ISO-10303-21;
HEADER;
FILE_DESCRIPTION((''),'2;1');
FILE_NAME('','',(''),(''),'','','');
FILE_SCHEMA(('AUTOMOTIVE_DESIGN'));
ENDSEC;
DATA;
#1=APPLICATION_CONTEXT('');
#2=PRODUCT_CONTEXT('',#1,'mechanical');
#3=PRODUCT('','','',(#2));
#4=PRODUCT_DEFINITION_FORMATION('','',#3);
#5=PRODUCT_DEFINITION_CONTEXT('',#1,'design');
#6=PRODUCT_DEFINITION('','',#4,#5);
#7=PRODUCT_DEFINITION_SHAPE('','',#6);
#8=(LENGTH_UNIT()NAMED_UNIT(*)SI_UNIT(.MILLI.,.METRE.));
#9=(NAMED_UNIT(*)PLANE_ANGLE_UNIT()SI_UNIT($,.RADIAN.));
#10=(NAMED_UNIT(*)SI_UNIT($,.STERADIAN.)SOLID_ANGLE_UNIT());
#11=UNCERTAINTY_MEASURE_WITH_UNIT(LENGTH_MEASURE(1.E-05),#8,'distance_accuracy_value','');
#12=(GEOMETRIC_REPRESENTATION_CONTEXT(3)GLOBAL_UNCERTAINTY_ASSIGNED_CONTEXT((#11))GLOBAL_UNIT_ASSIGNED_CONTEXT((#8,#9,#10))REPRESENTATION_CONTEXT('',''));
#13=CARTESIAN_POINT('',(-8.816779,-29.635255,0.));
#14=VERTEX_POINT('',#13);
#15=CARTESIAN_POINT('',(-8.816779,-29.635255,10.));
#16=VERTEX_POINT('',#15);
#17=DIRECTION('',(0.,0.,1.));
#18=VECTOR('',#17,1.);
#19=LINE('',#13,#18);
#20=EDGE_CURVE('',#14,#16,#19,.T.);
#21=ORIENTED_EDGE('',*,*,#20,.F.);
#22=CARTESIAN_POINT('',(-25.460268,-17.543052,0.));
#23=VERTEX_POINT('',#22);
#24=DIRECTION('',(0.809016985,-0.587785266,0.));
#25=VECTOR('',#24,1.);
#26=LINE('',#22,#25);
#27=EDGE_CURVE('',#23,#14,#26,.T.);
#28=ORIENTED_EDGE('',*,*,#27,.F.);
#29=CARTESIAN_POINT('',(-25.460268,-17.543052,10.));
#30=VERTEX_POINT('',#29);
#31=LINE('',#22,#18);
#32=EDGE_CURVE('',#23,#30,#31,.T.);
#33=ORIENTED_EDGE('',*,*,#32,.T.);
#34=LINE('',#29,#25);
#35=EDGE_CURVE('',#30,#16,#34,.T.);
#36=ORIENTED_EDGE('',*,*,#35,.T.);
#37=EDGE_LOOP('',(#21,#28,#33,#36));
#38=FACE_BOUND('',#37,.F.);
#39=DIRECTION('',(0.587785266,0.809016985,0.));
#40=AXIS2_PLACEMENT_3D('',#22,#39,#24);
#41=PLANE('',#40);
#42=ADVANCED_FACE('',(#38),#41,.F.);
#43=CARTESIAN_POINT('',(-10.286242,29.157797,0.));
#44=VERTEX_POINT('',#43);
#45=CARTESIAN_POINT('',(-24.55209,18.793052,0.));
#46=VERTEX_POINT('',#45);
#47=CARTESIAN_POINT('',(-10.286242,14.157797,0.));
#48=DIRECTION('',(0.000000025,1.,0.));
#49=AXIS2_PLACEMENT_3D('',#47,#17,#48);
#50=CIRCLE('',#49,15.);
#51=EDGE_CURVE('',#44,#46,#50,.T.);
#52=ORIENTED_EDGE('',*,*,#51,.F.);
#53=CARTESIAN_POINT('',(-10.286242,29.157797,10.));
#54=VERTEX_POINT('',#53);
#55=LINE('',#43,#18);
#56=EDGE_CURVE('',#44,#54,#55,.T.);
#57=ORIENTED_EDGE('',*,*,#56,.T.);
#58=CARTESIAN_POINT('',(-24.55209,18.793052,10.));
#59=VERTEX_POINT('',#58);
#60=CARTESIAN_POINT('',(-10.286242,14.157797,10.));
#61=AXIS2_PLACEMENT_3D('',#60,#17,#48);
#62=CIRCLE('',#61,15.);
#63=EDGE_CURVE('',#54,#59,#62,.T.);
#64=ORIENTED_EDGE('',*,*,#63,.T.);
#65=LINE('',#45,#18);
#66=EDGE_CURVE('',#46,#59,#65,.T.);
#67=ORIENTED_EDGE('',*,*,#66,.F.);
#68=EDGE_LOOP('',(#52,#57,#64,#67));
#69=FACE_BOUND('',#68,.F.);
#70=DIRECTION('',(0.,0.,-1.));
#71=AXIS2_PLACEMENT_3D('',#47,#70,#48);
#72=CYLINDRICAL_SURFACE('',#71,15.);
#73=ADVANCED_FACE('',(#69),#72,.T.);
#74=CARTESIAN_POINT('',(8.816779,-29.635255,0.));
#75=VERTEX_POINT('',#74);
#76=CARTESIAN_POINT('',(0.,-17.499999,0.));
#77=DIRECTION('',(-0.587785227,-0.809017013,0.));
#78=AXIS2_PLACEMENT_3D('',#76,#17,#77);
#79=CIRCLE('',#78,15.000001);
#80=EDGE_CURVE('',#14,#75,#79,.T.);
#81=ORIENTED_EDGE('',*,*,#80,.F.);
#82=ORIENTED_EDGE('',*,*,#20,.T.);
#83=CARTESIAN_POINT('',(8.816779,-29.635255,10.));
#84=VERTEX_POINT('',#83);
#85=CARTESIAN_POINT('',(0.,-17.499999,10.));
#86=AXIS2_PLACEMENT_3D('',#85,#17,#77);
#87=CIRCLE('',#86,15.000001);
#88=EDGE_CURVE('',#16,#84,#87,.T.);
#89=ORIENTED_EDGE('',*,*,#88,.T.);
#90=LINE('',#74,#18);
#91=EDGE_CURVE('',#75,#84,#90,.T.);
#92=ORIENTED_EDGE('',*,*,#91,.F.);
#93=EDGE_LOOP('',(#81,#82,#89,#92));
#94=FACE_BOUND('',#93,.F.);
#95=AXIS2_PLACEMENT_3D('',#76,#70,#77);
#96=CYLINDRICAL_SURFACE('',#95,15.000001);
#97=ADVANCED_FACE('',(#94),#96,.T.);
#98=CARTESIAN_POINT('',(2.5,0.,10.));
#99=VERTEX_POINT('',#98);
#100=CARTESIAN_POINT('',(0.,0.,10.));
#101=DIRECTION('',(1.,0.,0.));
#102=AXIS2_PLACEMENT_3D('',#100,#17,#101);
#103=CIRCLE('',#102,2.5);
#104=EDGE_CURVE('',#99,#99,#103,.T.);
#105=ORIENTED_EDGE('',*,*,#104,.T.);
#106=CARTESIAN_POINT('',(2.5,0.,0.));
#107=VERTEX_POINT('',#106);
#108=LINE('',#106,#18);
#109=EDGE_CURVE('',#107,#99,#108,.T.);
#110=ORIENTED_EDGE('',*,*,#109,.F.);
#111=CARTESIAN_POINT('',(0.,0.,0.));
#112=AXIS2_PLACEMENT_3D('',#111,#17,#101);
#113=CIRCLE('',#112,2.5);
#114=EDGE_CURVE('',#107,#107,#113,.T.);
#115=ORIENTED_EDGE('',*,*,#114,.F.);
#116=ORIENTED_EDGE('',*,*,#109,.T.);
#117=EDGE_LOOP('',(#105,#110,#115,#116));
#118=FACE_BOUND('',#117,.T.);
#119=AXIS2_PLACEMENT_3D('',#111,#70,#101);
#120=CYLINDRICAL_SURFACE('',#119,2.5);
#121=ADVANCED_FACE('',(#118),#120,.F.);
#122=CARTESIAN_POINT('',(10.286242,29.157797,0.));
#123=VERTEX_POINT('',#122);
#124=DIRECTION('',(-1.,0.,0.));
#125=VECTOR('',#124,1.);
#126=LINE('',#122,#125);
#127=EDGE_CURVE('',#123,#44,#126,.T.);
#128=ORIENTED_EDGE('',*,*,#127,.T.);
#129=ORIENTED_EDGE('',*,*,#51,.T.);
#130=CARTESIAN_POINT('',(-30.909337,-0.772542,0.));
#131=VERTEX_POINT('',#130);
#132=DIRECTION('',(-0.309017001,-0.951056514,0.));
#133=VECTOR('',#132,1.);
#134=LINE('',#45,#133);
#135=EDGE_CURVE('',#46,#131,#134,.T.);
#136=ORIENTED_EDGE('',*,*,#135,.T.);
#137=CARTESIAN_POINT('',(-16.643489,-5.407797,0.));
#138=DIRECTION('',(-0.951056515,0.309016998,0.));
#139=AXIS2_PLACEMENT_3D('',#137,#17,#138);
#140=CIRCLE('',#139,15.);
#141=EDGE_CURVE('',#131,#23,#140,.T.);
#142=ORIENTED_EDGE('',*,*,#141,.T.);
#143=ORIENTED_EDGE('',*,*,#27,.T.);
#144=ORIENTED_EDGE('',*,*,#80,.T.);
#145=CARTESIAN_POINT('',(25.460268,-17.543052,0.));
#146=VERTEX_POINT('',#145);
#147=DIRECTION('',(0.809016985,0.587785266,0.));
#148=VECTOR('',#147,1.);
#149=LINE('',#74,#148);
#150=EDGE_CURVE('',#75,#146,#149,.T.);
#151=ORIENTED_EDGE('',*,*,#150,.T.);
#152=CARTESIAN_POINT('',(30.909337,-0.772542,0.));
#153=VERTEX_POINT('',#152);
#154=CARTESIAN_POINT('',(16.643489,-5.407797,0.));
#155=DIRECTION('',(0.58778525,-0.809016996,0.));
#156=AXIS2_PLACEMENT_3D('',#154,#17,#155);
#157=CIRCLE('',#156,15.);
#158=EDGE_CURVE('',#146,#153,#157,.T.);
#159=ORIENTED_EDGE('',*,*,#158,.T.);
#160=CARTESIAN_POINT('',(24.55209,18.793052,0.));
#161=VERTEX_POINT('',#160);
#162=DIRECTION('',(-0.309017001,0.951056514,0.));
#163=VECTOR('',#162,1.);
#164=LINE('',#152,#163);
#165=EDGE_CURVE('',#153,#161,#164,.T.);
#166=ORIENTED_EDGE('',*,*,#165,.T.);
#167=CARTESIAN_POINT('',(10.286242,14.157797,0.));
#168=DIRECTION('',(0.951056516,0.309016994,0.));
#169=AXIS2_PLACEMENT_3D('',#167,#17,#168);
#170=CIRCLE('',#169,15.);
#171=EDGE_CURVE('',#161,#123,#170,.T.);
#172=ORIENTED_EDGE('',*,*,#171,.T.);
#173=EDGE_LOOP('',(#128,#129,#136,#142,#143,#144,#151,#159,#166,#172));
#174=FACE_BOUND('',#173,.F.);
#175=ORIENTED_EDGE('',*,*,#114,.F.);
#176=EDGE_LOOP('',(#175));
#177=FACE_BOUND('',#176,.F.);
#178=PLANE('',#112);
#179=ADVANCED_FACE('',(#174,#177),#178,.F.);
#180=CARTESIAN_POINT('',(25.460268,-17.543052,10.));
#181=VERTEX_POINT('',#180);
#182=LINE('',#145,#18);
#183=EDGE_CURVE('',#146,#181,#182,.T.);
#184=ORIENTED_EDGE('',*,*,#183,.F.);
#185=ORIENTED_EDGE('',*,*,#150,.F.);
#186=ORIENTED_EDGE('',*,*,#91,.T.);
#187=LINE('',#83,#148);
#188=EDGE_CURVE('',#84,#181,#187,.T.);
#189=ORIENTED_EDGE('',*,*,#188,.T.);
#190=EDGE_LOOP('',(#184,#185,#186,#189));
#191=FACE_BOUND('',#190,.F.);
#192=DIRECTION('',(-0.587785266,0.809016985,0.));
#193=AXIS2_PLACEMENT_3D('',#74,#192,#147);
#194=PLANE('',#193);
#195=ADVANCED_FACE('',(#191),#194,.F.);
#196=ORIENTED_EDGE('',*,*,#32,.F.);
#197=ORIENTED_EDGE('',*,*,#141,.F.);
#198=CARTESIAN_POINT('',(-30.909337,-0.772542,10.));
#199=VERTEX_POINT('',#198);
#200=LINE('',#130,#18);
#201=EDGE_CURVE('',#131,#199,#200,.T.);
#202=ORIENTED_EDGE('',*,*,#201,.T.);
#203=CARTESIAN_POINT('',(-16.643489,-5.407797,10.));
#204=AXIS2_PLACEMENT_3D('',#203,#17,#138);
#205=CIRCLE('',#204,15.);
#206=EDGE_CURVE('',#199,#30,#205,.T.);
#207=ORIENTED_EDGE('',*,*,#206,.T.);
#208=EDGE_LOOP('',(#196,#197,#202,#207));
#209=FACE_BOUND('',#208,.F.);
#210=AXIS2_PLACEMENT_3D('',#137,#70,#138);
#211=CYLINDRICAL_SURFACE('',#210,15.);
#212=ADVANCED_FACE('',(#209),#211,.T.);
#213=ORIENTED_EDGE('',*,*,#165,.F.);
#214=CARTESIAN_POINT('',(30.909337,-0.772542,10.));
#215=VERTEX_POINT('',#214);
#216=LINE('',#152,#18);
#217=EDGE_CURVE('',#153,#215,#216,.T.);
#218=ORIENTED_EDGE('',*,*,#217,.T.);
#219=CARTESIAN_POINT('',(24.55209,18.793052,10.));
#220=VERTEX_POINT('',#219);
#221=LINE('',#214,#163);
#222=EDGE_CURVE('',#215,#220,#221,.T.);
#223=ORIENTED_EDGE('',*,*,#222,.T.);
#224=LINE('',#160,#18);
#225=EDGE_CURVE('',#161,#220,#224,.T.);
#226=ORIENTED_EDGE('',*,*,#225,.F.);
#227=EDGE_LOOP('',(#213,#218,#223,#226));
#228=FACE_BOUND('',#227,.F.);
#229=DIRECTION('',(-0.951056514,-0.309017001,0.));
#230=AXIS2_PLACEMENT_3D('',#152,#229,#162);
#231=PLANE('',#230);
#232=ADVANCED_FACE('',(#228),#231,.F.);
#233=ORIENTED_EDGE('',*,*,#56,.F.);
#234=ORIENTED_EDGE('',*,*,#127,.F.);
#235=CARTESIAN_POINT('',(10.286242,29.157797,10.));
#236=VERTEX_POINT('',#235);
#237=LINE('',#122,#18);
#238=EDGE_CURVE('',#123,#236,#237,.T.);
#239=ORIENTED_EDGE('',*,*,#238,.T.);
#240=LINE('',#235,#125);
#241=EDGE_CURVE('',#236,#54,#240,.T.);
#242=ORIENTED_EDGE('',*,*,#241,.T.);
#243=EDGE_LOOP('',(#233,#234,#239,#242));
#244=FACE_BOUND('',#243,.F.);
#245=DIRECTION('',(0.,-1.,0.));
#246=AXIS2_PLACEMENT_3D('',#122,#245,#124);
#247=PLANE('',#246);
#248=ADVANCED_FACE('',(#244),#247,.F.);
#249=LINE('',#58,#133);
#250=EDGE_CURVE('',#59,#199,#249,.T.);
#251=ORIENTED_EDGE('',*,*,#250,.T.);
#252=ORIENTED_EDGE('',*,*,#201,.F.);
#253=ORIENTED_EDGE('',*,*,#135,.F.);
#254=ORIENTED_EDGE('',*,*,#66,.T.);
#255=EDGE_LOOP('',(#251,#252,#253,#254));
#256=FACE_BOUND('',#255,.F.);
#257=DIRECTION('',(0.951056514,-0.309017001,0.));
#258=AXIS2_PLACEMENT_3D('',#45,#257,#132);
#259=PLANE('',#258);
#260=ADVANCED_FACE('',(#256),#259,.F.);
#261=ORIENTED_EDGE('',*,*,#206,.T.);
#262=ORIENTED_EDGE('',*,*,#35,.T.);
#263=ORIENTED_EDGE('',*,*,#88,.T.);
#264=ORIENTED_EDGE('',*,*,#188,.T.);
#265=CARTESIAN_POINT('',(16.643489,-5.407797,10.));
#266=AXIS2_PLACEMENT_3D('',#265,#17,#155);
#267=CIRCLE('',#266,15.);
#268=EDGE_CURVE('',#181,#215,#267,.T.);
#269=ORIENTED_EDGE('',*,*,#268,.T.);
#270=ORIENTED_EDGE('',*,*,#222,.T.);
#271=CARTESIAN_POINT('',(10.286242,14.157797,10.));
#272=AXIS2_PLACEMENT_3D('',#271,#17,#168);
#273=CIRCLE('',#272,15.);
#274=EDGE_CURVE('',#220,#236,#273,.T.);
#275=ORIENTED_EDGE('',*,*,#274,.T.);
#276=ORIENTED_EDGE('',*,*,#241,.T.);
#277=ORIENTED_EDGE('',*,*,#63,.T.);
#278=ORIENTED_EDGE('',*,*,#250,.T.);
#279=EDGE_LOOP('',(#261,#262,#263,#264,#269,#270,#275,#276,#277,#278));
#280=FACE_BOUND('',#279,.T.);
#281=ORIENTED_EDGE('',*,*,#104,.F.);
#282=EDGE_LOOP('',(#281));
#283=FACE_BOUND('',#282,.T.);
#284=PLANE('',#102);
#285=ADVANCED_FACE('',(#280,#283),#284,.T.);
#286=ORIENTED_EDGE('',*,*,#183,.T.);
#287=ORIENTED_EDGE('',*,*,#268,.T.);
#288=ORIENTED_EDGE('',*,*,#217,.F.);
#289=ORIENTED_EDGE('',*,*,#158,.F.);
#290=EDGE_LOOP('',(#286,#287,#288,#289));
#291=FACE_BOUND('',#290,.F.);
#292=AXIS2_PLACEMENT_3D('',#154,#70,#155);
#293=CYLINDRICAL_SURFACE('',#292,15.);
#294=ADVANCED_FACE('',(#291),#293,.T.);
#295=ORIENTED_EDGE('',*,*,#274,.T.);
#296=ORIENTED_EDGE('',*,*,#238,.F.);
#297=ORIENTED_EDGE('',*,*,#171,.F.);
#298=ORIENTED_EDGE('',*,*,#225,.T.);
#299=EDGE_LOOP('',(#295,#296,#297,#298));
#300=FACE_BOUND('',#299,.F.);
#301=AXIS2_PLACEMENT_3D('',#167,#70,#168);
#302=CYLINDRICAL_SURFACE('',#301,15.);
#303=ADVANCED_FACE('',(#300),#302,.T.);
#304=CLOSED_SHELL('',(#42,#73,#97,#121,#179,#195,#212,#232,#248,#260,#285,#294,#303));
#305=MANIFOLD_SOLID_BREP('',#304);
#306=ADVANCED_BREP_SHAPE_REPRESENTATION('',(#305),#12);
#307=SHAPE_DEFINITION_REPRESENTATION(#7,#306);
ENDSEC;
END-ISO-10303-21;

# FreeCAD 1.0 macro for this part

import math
import FreeCAD as App
import Part
import Sketcher
Q = App.Units.Quantity

doc = App.newDocument("Part")
params = doc.addObject("Spreadsheet::Sheet", "Params")
for row, (alias, value) in enumerate([
    ("sketch1_diameter", "5 mm"),
    ("sketch1_radius", "15 mm"),
    ("pad1_length", "10 mm"),
], start=1):
    params.set(f"A{row}", alias)
    params.set(f"B{row}", "=" + value)
    params.setAlias(f"B{row}", alias)

body = doc.addObject("PartDesign::Body", "Body")

# Sketch on XY plane
sketch1 = body.newObject("Sketcher::SketchObject", "Sketch")
sketch1.AttachmentSupport = (doc.getObject("XY_Plane"), [""])
sketch1.MapMode = "FlatFace"
sketch1.addGeometry([
    Part.LineSegment(App.Vector(10.3, 29.2, 0), App.Vector(-10.3, 29.2, 0)),  # 0
    Part.ArcOfCircle(Part.Circle(App.Vector(-10.3, 14.2, 0), App.Vector(0, 0, 1), 15), math.radians(90), math.radians(162)),  # 1
    Part.LineSegment(App.Vector(-24.6, 18.8, 0), App.Vector(-30.9, -0.8, 0)),  # 2
    Part.ArcOfCircle(Part.Circle(App.Vector(-16.6, -5.4, 0), App.Vector(0, 0, 1), 15), math.radians(162), math.radians(234)),  # 3
    Part.LineSegment(App.Vector(-25.5, -17.5, 0), App.Vector(-8.8, -29.6, 0)),  # 4
    Part.ArcOfCircle(Part.Circle(App.Vector(0, -17.5, 0), App.Vector(0, 0, 1), 15), math.radians(-126), math.radians(-54)),  # 5
    Part.LineSegment(App.Vector(8.8, -29.6, 0), App.Vector(25.5, -17.5, 0)),  # 6
    Part.ArcOfCircle(Part.Circle(App.Vector(16.6, -5.4, 0), App.Vector(0, 0, 1), 15), math.radians(-54), math.radians(18)),  # 7
    Part.LineSegment(App.Vector(30.9, -0.8, 0), App.Vector(24.6, 18.8, 0)),  # 8
    Part.ArcOfCircle(Part.Circle(App.Vector(10.3, 14.2, 0), App.Vector(0, 0, 1), 15), math.radians(18), math.radians(90)),  # 9
    Part.Circle(App.Vector(0, 0, 0), App.Vector(0, 0, 1), 2.5),  # 10
], False)
sketch1.addConstraint([
    Sketcher.Constraint("Tangent", 0, 2, 1, 1),
    Sketcher.Constraint("Tangent", 1, 2, 2, 1),
    Sketcher.Constraint("Tangent", 2, 2, 3, 1),
    Sketcher.Constraint("Tangent", 3, 2, 4, 1),
    Sketcher.Constraint("Tangent", 4, 2, 5, 1),
    Sketcher.Constraint("Tangent", 5, 2, 6, 1),
    Sketcher.Constraint("Tangent", 6, 2, 7, 1),
    Sketcher.Constraint("Tangent", 7, 2, 8, 1),
    Sketcher.Constraint("Tangent", 8, 2, 9, 1),
    Sketcher.Constraint("Tangent", 9, 2, 0, 1),
    Sketcher.Constraint("Horizontal", 0),
    Sketcher.Constraint("Coincident", 10, 3, -1, 1),
    Sketcher.Constraint("Equal", 1, 3),
    Sketcher.Constraint("Equal", 3, 5),
    Sketcher.Constraint("Equal", 5, 7),
    Sketcher.Constraint("Equal", 7, 9),
    Sketcher.Constraint("Symmetric", 3, 3, 7, 3, -2),
    Sketcher.Constraint("PointOnObject", 5, 3, -2),
    Sketcher.Constraint("Horizontal", 2, 2, 7, 2),
    Sketcher.Constraint("Equal", 2, 4),
    Sketcher.Constraint("Diameter", 10, Q("5 mm")),
    Sketcher.Constraint("Radius", 1, Q("15 mm")),
    Sketcher.Constraint("Angle", 2, Q("-108 deg")),
    Sketcher.Constraint("Angle", 4, Q("-36.000001 deg")),
    Sketcher.Constraint("DistanceY", 5, 3, -1, 1, Q("17.499999 mm")),
    Sketcher.Constraint("DistanceY", 5, 3, 3, 3, Q("12.092202 mm")),
])
sketch1.setExpression("Constraints[20]", "Params.sketch1_diameter")
sketch1.setExpression("Constraints[21]", "Params.sketch1_radius")
pad1 = body.newObject("PartDesign::Pad", "Pad")
pad1.Profile = sketch1
pad1.setExpression("Length", "Params.pad1_length")

doc.recompute()
